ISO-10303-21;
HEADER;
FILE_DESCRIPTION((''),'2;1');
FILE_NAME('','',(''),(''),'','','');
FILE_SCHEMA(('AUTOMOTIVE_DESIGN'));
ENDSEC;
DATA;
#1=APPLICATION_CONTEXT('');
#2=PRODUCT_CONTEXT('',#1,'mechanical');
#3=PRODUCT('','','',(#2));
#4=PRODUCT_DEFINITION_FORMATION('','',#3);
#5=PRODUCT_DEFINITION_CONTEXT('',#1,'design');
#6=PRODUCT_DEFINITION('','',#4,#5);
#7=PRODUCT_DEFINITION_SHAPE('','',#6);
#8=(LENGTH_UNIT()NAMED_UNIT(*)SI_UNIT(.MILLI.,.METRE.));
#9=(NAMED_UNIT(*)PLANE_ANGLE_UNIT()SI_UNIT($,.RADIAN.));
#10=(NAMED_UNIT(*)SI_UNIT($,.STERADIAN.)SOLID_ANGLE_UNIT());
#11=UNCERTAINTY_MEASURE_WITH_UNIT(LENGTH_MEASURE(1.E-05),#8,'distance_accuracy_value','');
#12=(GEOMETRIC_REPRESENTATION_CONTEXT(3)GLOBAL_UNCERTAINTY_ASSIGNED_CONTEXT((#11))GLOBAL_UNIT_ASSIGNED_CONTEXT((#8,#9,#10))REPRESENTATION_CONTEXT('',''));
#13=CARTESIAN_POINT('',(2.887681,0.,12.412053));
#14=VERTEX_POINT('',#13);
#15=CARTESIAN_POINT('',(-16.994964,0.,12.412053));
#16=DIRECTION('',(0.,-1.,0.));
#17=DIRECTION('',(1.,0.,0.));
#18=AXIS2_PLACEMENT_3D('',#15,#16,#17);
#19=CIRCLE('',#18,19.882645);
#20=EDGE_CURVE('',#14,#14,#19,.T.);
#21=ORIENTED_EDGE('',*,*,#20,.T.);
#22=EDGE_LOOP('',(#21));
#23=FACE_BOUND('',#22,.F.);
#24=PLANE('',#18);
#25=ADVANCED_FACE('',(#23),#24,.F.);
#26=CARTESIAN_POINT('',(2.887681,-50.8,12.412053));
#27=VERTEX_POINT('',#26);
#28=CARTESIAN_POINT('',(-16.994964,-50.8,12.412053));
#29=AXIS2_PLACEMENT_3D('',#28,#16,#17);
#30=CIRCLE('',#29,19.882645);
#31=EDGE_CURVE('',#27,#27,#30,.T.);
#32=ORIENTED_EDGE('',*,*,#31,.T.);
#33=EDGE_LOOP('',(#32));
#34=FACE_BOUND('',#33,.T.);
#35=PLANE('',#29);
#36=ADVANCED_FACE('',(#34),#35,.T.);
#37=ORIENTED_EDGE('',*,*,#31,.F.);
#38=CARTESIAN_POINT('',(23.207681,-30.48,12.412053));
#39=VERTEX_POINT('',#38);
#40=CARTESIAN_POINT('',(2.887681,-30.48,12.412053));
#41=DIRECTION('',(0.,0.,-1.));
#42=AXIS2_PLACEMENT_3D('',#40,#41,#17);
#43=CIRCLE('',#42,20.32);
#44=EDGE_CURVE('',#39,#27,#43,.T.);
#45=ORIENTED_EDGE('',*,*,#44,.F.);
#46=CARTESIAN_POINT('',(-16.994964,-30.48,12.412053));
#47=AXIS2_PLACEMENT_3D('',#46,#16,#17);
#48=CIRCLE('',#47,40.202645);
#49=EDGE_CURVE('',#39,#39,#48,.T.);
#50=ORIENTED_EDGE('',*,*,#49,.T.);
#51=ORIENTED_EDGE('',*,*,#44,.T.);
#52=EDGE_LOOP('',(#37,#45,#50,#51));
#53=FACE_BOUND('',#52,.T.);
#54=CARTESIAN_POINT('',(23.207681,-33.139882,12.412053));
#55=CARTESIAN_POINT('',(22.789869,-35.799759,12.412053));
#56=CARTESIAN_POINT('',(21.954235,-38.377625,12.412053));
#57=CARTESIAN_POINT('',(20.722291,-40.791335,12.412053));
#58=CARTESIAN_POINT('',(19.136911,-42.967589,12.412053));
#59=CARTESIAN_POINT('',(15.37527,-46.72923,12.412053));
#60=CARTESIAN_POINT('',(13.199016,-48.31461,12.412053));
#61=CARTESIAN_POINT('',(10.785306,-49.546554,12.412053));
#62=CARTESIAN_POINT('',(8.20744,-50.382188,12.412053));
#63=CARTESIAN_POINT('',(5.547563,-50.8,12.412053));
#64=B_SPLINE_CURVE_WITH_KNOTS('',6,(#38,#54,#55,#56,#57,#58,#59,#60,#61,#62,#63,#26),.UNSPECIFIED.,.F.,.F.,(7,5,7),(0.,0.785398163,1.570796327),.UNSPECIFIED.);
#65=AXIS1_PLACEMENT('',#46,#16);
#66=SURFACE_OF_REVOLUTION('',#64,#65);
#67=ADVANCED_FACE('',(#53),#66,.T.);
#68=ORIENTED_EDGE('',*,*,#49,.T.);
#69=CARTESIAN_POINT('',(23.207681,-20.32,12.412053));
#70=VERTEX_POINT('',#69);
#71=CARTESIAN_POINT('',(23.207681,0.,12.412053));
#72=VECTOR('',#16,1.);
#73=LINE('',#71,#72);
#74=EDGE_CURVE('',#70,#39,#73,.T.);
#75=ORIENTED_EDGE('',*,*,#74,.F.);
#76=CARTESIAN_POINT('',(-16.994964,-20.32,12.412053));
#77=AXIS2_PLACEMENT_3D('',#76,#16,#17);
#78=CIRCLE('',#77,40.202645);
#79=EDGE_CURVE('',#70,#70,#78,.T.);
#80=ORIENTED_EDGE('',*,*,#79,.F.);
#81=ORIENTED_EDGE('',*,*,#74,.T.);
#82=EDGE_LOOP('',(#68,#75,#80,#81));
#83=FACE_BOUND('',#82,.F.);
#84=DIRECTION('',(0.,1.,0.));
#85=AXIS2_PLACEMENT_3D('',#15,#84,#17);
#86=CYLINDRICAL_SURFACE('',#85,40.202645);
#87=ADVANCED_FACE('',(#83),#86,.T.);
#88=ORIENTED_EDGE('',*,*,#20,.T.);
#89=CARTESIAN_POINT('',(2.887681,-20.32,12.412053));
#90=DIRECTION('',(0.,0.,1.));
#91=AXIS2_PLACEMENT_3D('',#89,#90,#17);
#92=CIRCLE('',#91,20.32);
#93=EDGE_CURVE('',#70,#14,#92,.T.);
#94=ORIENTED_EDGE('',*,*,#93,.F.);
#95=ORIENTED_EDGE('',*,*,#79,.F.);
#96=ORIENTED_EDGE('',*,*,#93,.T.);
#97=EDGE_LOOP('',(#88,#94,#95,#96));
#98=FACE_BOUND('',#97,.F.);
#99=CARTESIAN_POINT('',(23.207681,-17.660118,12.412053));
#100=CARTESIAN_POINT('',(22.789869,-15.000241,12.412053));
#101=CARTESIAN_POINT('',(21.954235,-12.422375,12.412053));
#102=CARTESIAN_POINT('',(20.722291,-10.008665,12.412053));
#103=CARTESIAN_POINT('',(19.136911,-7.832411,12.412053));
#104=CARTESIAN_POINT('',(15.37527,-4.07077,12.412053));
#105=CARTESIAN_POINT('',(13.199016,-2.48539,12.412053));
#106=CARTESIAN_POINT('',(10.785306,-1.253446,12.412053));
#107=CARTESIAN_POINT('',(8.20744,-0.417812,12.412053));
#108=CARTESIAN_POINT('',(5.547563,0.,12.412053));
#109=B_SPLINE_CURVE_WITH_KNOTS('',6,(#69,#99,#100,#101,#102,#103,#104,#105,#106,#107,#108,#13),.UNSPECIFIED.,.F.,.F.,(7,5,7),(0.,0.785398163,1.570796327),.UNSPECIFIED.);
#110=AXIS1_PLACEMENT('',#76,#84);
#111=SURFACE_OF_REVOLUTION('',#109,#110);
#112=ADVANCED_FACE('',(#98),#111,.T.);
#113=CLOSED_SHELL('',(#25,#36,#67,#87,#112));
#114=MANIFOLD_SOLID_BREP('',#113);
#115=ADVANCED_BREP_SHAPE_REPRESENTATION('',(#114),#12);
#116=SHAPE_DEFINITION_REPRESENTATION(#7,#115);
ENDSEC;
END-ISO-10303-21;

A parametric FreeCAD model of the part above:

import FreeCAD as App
import Part
import Sketcher

V = App.Vector
Q = App.Units.Quantity

doc = App.newDocument("Part")
body = doc.addObject("PartDesign::Body", "Body")

# Sketch on XZ plane
sketch1 = body.newObject("Sketcher::SketchObject", "Sketch")
sketch1.AttachmentSupport = (doc.getObject("XZ_Plane"), [""])
sketch1.MapMode = "FlatFace"
sketch1.addGeometry(Part.Circle(V(-17, 12, 0), V(0, 0, 1), 40), False)
sketch1.addConstraint([
    Sketcher.Constraint("Diameter", 0, Q("80.40529 mm")),
    Sketcher.Constraint("DistanceX", 0, 3, -1, 1, Q("16.994964 mm")),
    Sketcher.Constraint("DistanceY", -1, 1, 0, 3, Q("12.412053 mm")),
])
pad1 = body.newObject("PartDesign::Pad", "Pad")
pad1.Profile = sketch1
pad1.Length = Q("2 in")
doc.recompute()

fillet = body.newObject("PartDesign::Fillet", "Fillet")
fillet.Base = (pad1, ["Edge1"])
fillet.UseAllEdges = True
fillet.Radius = Q("0.8 in")

doc.recompute()
